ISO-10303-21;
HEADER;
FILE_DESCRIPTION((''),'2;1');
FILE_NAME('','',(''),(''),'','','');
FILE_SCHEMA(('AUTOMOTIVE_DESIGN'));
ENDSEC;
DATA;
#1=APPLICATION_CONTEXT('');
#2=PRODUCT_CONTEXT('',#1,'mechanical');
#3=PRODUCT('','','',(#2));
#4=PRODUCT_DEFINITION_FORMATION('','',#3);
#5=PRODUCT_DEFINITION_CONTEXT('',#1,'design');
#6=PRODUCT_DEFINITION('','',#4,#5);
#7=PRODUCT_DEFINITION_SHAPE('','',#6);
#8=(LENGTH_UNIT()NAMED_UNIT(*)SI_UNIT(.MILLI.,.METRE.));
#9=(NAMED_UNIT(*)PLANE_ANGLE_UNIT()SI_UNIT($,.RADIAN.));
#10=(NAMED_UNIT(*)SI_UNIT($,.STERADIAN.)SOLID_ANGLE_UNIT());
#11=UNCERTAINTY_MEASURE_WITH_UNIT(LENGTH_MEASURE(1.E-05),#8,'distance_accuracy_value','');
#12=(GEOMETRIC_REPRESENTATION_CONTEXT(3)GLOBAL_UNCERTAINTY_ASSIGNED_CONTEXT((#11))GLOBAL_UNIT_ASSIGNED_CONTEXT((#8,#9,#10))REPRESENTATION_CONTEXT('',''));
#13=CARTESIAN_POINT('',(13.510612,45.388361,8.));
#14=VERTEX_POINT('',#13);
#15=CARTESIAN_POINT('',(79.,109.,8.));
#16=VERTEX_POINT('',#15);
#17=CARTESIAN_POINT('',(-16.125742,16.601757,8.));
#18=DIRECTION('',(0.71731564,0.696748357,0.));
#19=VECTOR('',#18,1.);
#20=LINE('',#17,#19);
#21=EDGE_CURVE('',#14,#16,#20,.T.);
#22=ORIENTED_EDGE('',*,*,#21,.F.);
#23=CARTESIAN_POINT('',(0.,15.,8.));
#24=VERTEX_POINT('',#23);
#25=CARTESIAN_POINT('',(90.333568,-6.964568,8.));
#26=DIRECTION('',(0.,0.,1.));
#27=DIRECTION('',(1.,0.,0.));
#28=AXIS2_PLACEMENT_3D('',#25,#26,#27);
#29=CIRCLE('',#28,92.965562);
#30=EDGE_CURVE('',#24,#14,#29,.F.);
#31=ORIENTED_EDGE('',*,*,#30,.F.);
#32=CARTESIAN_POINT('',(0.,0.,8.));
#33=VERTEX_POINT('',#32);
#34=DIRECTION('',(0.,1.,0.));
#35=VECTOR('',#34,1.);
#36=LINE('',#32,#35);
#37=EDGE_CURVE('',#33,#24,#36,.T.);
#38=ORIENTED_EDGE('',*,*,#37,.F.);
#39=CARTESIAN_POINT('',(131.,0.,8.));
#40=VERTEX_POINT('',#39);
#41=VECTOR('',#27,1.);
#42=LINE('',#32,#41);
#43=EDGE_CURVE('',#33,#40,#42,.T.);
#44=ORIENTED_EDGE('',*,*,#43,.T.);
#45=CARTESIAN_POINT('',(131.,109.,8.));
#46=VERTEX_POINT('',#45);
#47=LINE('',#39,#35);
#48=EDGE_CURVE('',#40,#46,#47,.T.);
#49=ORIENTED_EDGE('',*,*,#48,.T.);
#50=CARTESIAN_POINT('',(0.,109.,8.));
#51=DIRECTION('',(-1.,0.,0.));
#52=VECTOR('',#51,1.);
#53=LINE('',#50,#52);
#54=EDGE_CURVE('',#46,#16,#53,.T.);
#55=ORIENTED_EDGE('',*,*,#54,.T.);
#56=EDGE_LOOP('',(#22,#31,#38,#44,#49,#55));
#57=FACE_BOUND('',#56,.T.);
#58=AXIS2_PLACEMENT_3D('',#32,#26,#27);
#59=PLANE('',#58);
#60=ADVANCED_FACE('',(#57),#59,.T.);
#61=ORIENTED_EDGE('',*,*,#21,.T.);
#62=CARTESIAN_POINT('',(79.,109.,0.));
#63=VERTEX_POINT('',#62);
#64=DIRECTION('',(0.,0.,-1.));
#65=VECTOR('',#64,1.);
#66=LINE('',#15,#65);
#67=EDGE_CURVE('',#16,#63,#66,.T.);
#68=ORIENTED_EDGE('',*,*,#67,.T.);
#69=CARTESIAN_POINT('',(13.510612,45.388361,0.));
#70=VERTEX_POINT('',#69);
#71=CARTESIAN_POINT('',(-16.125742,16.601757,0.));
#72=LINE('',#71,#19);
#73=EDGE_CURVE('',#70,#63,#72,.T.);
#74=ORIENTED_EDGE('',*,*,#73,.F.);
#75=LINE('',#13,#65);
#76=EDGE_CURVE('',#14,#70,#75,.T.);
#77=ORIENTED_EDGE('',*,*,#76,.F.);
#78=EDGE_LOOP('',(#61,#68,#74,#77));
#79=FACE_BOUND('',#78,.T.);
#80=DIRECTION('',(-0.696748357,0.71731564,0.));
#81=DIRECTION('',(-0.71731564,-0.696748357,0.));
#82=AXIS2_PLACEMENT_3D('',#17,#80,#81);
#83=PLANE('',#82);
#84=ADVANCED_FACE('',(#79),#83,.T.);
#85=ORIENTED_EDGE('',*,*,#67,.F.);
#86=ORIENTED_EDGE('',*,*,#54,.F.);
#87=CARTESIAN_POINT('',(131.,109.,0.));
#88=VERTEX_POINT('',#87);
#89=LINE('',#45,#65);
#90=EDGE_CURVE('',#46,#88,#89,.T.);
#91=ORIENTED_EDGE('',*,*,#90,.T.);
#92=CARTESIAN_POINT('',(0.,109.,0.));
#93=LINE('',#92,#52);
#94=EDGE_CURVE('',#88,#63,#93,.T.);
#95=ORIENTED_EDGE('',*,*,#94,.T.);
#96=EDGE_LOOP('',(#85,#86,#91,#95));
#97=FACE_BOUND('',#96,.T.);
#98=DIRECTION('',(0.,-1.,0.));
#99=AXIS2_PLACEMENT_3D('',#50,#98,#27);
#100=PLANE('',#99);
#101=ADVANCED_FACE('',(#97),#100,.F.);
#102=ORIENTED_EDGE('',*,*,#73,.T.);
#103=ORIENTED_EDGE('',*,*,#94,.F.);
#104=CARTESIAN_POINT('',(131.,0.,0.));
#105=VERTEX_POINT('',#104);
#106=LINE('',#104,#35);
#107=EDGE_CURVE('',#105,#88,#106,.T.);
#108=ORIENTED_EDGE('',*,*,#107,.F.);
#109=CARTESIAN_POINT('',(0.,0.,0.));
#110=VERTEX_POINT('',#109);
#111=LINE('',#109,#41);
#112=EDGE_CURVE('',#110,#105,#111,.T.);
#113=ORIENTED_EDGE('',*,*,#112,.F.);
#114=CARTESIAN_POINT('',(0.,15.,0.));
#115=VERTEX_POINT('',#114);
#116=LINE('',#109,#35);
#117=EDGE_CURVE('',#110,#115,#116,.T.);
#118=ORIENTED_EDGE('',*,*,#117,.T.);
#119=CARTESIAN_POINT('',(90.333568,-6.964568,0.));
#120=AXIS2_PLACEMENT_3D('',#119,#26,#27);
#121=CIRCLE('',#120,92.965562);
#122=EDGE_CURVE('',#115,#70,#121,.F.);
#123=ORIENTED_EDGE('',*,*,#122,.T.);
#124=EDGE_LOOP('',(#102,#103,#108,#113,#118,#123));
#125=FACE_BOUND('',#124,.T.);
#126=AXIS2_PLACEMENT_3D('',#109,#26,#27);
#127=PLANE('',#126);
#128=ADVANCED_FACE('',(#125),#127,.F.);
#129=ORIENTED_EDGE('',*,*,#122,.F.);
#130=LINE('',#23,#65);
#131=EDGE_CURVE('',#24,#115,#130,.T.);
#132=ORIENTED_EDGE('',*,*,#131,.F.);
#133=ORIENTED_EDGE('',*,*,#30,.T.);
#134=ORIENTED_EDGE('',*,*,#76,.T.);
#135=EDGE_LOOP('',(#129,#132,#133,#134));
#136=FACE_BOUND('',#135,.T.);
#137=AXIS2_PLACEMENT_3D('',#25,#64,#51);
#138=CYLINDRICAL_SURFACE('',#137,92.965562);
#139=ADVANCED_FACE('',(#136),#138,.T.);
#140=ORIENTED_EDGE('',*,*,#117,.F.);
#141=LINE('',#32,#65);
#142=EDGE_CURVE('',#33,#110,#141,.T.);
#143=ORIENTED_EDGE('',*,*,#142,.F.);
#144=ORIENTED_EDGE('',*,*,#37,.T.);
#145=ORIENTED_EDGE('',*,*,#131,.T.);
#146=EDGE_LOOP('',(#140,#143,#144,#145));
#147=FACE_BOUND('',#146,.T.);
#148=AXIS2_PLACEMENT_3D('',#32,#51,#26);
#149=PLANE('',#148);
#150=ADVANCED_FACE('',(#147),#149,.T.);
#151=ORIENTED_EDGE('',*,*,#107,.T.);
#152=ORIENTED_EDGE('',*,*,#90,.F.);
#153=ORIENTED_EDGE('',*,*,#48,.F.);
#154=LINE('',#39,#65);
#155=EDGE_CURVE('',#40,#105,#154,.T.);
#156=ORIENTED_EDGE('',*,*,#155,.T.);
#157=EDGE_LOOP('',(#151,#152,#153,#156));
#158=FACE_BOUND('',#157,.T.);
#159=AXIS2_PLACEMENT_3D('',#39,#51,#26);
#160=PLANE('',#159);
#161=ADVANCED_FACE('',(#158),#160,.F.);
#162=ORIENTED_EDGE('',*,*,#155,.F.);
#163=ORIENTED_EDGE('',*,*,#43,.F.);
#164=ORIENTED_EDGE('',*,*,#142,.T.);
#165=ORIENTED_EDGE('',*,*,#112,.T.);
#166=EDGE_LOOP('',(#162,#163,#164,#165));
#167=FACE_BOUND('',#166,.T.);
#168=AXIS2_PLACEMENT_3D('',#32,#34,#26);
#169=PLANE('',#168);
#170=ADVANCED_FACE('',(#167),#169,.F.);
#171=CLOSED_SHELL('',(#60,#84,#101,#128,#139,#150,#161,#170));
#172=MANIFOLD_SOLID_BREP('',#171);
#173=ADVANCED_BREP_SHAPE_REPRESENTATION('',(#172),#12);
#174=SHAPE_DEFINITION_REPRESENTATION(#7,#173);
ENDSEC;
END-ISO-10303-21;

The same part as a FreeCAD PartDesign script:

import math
import FreeCAD as App
import Part
import Sketcher
from FreeCAD import Vector

doc = App.newDocument("Part")
body = doc.addObject("PartDesign::Body", "Body")

# Sketch on XY plane
sketch1 = body.newObject("Sketcher::SketchObject", "Sketch")
sketch1.AttachmentSupport = (doc.getObject("XY_Plane"), [""])
sketch1.MapMode = "FlatFace"
sketch1.addGeometry(Part.LineSegment(Vector(0, 15, 0), Vector(0, 0, 0)), False)
sketch1.addGeometry(Part.LineSegment(Vector(0, 0, 0), Vector(131, 0, 0)), False)
sketch1.addGeometry(Part.LineSegment(Vector(131, 0, 0), Vector(131, 109, 0)), False)
sketch1.addGeometry(Part.LineSegment(Vector(131, 109, 0), Vector(79, 109, 0)), False)
sketch1.addGeometry(Part.LineSegment(Vector(79, 109, 0), Vector(14, 45, 0)), False)
sketch1.addGeometry(Part.ArcOfCircle(Part.Circle(Vector(90, -7, 0), Vector(0, 0, 1), 93), math.radians(146), math.radians(166)), False)
sketch1.addConstraint(Sketcher.Constraint("Coincident", 0, 2, 1, 1))
sketch1.addConstraint(Sketcher.Constraint("Coincident", 1, 2, 2, 1))
sketch1.addConstraint(Sketcher.Constraint("Coincident", 2, 2, 3, 1))
sketch1.addConstraint(Sketcher.Constraint("Coincident", 3, 2, 4, 1))
sketch1.addConstraint(Sketcher.Constraint("Coincident", 4, 2, 5, 1))
sketch1.addConstraint(Sketcher.Constraint("Coincident", 5, 2, 0, 1))
sketch1.addConstraint(Sketcher.Constraint("Vertical", 0))
sketch1.addConstraint(Sketcher.Constraint("Horizontal", 1))
sketch1.addConstraint(Sketcher.Constraint("Vertical", 2))
sketch1.addConstraint(Sketcher.Constraint("Horizontal", 3))
sketch1.addConstraint(Sketcher.Constraint("Coincident", 0, 2, -1, 1))
sketch1.addConstraint(Sketcher.Constraint("DistanceX", 1, 1, 1, 2, 131.0))
sketch1.addConstraint(Sketcher.Constraint("DistanceX", 3, 2, 3, 1, 52.0))
sketch1.addConstraint(Sketcher.Constraint("DistanceY", 0, 2, 0, 1, 15.0))
sketch1.addConstraint(Sketcher.Constraint("DistanceY", 2, 1, 2, 2, 109.0))
sketch1.addConstraint(Sketcher.Constraint("Radius", 5, 92.965562))
sketch1.addConstraint(Sketcher.Constraint("DistanceX", -1, 1, 4, 2, 13.510612))
sketch1.addConstraint(Sketcher.Constraint("DistanceY", -1, 1, 4, 2, 45.388361))
pad1 = body.newObject("PartDesign::Pad", "Pad")
pad1.Profile = sketch1
pad1.Length = 8

doc.recompute()
